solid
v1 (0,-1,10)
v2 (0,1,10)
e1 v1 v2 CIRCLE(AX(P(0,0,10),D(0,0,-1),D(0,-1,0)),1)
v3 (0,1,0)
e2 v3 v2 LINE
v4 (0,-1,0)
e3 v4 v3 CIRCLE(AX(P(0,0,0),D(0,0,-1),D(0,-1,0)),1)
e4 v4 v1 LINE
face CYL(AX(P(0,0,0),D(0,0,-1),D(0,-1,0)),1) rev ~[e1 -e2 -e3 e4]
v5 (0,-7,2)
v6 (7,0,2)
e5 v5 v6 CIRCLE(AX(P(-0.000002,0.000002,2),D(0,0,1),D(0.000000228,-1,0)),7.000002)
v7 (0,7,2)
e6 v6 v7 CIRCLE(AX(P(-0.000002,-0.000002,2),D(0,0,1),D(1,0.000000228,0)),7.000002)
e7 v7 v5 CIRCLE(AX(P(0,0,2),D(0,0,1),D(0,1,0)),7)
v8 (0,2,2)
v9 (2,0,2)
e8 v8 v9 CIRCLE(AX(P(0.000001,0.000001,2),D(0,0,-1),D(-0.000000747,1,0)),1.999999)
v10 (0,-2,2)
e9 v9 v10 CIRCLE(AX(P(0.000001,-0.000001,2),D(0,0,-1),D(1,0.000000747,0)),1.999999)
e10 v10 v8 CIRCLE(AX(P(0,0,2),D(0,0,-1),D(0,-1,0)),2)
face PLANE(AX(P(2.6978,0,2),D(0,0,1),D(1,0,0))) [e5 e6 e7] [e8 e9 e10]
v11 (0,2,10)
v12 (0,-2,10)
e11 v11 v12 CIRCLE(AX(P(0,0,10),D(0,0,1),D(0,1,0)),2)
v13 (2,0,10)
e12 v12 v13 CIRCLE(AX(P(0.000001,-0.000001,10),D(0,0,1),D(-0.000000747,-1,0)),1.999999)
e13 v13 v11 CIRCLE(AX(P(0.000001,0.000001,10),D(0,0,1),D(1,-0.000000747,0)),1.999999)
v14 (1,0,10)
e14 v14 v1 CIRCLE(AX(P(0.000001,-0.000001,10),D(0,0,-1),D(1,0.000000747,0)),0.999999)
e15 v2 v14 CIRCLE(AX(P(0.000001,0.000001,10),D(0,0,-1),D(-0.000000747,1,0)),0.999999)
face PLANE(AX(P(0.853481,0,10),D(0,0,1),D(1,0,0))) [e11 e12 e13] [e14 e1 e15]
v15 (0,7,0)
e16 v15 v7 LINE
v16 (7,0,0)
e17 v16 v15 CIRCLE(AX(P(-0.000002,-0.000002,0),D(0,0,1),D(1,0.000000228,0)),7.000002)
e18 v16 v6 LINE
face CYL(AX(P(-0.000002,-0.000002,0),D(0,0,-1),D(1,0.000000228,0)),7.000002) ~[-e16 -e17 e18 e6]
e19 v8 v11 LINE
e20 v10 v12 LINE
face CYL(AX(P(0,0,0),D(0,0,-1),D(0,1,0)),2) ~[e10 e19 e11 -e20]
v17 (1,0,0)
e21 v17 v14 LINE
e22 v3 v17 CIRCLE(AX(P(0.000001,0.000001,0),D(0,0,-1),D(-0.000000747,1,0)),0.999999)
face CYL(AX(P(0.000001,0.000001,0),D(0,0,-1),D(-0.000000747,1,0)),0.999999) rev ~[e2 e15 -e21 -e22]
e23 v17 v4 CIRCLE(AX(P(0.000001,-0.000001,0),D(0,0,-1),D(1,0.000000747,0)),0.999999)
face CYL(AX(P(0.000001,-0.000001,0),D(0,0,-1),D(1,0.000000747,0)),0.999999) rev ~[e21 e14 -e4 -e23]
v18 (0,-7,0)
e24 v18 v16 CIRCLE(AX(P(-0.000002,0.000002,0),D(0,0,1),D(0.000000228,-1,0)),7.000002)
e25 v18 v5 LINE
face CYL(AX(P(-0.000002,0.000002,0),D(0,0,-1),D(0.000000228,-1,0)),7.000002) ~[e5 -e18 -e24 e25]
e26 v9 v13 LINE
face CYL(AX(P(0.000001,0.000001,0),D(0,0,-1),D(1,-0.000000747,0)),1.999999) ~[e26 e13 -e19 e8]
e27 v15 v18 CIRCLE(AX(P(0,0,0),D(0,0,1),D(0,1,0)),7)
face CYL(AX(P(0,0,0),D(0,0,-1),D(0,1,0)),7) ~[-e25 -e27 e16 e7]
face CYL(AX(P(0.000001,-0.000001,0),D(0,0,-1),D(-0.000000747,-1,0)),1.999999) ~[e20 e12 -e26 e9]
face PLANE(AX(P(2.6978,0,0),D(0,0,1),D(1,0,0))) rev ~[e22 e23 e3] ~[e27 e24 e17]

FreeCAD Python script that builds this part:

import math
import FreeCAD as App
import Part
import Sketcher

V = App.Vector

doc = App.newDocument("Part")
body = doc.addObject("PartDesign::Body", "Body")

sketch1 = doc.addObject("Sketcher::SketchObject", "Sketch")
body.addObject(sketch1)
sketch1.AttachmentSupport = (doc.XY_Plane, [""])
sketch1.MapMode = "FlatFace"
sketch1.addGeometry([
    Part.LineSegment(V(0, 2, 0), V(0, 7, 0)),
    Part.ArcOfCircle(Part.Circle(V(0, 0, 0), V(0, 0, 1), 7), math.radians(90), math.radians(270)),
    Part.LineSegment(V(0, -7, 0), V(0, -2, 0)),
    Part.ArcOfCircle(Part.Circle(V(0, 0, 0), V(0, 0, 1), 2), math.radians(90), math.radians(270)),
], False)
sketch1.addConstraint([
    Sketcher.Constraint("Coincident", 0, 2, 1, 1),
    Sketcher.Constraint("Coincident", 1, 2, 2, 1),
    Sketcher.Constraint("Coincident", 2, 2, 3, 2),
    Sketcher.Constraint("Coincident", 3, 1, 0, 1),
    Sketcher.Constraint("Vertical", 0),
    Sketcher.Constraint("Vertical", 2),
    Sketcher.Constraint("Coincident", 1, 3, -1, 1),
    Sketcher.Constraint("Coincident", 3, 3, -1, 1),
    Sketcher.Constraint("PointOnObject", 0, 2, -2),
    Sketcher.Constraint("PointOnObject", 1, 2, -2),
    Sketcher.Constraint("Radius", 1, 7.0),
    Sketcher.Constraint("Radius", 3, 2.0),
])
pad1 = doc.addObject("PartDesign::Pad", "Pad")
body.addObject(pad1)
pad1.Profile = sketch1
pad1.Length = 2
body2 = doc.addObject("PartDesign::Body", "Body001")

sketch2 = doc.addObject("Sketcher::SketchObject", "Sketch001")
body2.addObject(sketch2)
sketch2.AttachmentSupport = (doc.getObject("XY_Plane001"), [""])
sketch2.MapMode = "FlatFace"
sketch2.addGeometry([
    Part.ArcOfCircle(Part.Circle(V(0, 0, 0), V(0, 0, 1), 7), math.radians(-90), math.radians(0)),
    Part.ArcOfCircle(Part.Circle(V(0, 0, 0), V(0, 0, 1), 7), math.radians(0), math.radians(90)),
    Part.LineSegment(V(0, 7, 0), V(0, 2, 0)),
    Part.ArcOfCircle(Part.Circle(V(0, 0, 0), V(0, 0, 1), 2), math.radians(0), math.radians(90)),
    Part.ArcOfCircle(Part.Circle(V(0, 0, 0), V(0, 0, 1), 2), math.radians(-90), math.radians(0)),
    Part.LineSegment(V(0, -2, 0), V(0, -7, 0)),
], False)
sketch2.addConstraint([
    Sketcher.Constraint("Tangent", 0, 2, 1, 1),
    Sketcher.Constraint("Coincident", 1, 2, 2, 1),
    Sketcher.Constraint("Coincident", 2, 2, 3, 2),
    Sketcher.Constraint("Tangent", 3, 1, 4, 2),
    Sketcher.Constraint("Coincident", 4, 1, 5, 1),
    Sketcher.Constraint("Coincident", 5, 2, 0, 1),
    Sketcher.Constraint("Vertical", 2),
    Sketcher.Constraint("Vertical", 5),
    Sketcher.Constraint("Coincident", 0, 3, -1, 1),
    Sketcher.Constraint("Coincident", 3, 3, -1, 1),
    Sketcher.Constraint("Equal", 0, 1),
    Sketcher.Constraint("Equal", 3, 4),
    Sketcher.Constraint("PointOnObject", 0, 2, -1),
    Sketcher.Constraint("PointOnObject", 1, 2, -2),
    Sketcher.Constraint("PointOnObject", 3, 1, -1),
    Sketcher.Constraint("PointOnObject", 4, 1, -2),
    Sketcher.Constraint("Radius", 0, 7.000002),
    Sketcher.Constraint("Radius", 3, 1.999999),
])
pad2 = doc.addObject("PartDesign::Pad", "Pad001")
body2.addObject(pad2)
pad2.Profile = sketch2
pad2.Length = 2
doc.recompute()

boolean = doc.addObject("PartDesign::Boolean", "Boolean")
body.addObject(boolean)
boolean.Type = "Fuse"
boolean.addObjects([body2])

sketch3 = doc.addObject("Sketcher::SketchObject", "Sketch002")
body.addObject(sketch3)
sketch3.AttachmentSupport = (doc.XY_Plane, [""])
sketch3.MapMode = "FlatFace"
sketch3.addGeometry([
    Part.ArcOfCircle(Part.Circle(V(0, 0, 0), V(0, 0, 1), 2), math.radians(0), math.radians(90)),
    Part.ArcOfCircle(Part.Circle(V(0, 0, 0), V(0, 0, 1), 2), math.radians(90), math.radians(270)),
    Part.ArcOfCircle(Part.Circle(V(0, 0, 0), V(0, 0, 1), 2), math.radians(-90), math.radians(0)),
    Part.ArcOfCircle(Part.Circle(V(0, 0, 0), V(0, 0, 1), 1), math.radians(0), math.radians(90)),
    Part.ArcOfCircle(Part.Circle(V(0, 0, 0), V(0, 0, 1), 1), math.radians(-90), math.radians(0)),
    Part.ArcOfCircle(Part.Circle(V(0, 0, 0), V(0, 0, 1), 1), math.radians(90), math.radians(270)),
], False)
sketch3.addConstraint([
    Sketcher.Constraint("Tangent", 0, 2, 1, 1),
    Sketcher.Constraint("Tangent", 1, 2, 2, 1),
    Sketcher.Constraint("Tangent", 2, 2, 0, 1),
    Sketcher.Constraint("Tangent", 3, 1, 4, 2),
    Sketcher.Constraint("Tangent", 4, 1, 5, 2),
    Sketcher.Constraint("Tangent", 5, 1, 3, 2),
    Sketcher.Constraint("Coincident", 0, 3, -1, 1),
    Sketcher.Constraint("Coincident", 3, 3, -1, 1),
    Sketcher.Constraint("PointOnObject", 0, 2, -2),
    Sketcher.Constraint("PointOnObject", 1, 2, -2),
    Sketcher.Constraint("PointOnObject", 2, 2, -1),
    Sketcher.Constraint("PointOnObject", 3, 1, -1),
    Sketcher.Constraint("PointOnObject", 4, 1, -2),
    Sketcher.Constraint("PointOnObject", 5, 1, -2),
    Sketcher.Constraint("Radius", 0, 1.999999),
    Sketcher.Constraint("Radius", 3, 0.999999),
])
pad3 = doc.addObject("PartDesign::Pad", "Pad002")
body.addObject(pad3)
pad3.Profile = sketch3
pad3.Length = 10

doc.recompute()
